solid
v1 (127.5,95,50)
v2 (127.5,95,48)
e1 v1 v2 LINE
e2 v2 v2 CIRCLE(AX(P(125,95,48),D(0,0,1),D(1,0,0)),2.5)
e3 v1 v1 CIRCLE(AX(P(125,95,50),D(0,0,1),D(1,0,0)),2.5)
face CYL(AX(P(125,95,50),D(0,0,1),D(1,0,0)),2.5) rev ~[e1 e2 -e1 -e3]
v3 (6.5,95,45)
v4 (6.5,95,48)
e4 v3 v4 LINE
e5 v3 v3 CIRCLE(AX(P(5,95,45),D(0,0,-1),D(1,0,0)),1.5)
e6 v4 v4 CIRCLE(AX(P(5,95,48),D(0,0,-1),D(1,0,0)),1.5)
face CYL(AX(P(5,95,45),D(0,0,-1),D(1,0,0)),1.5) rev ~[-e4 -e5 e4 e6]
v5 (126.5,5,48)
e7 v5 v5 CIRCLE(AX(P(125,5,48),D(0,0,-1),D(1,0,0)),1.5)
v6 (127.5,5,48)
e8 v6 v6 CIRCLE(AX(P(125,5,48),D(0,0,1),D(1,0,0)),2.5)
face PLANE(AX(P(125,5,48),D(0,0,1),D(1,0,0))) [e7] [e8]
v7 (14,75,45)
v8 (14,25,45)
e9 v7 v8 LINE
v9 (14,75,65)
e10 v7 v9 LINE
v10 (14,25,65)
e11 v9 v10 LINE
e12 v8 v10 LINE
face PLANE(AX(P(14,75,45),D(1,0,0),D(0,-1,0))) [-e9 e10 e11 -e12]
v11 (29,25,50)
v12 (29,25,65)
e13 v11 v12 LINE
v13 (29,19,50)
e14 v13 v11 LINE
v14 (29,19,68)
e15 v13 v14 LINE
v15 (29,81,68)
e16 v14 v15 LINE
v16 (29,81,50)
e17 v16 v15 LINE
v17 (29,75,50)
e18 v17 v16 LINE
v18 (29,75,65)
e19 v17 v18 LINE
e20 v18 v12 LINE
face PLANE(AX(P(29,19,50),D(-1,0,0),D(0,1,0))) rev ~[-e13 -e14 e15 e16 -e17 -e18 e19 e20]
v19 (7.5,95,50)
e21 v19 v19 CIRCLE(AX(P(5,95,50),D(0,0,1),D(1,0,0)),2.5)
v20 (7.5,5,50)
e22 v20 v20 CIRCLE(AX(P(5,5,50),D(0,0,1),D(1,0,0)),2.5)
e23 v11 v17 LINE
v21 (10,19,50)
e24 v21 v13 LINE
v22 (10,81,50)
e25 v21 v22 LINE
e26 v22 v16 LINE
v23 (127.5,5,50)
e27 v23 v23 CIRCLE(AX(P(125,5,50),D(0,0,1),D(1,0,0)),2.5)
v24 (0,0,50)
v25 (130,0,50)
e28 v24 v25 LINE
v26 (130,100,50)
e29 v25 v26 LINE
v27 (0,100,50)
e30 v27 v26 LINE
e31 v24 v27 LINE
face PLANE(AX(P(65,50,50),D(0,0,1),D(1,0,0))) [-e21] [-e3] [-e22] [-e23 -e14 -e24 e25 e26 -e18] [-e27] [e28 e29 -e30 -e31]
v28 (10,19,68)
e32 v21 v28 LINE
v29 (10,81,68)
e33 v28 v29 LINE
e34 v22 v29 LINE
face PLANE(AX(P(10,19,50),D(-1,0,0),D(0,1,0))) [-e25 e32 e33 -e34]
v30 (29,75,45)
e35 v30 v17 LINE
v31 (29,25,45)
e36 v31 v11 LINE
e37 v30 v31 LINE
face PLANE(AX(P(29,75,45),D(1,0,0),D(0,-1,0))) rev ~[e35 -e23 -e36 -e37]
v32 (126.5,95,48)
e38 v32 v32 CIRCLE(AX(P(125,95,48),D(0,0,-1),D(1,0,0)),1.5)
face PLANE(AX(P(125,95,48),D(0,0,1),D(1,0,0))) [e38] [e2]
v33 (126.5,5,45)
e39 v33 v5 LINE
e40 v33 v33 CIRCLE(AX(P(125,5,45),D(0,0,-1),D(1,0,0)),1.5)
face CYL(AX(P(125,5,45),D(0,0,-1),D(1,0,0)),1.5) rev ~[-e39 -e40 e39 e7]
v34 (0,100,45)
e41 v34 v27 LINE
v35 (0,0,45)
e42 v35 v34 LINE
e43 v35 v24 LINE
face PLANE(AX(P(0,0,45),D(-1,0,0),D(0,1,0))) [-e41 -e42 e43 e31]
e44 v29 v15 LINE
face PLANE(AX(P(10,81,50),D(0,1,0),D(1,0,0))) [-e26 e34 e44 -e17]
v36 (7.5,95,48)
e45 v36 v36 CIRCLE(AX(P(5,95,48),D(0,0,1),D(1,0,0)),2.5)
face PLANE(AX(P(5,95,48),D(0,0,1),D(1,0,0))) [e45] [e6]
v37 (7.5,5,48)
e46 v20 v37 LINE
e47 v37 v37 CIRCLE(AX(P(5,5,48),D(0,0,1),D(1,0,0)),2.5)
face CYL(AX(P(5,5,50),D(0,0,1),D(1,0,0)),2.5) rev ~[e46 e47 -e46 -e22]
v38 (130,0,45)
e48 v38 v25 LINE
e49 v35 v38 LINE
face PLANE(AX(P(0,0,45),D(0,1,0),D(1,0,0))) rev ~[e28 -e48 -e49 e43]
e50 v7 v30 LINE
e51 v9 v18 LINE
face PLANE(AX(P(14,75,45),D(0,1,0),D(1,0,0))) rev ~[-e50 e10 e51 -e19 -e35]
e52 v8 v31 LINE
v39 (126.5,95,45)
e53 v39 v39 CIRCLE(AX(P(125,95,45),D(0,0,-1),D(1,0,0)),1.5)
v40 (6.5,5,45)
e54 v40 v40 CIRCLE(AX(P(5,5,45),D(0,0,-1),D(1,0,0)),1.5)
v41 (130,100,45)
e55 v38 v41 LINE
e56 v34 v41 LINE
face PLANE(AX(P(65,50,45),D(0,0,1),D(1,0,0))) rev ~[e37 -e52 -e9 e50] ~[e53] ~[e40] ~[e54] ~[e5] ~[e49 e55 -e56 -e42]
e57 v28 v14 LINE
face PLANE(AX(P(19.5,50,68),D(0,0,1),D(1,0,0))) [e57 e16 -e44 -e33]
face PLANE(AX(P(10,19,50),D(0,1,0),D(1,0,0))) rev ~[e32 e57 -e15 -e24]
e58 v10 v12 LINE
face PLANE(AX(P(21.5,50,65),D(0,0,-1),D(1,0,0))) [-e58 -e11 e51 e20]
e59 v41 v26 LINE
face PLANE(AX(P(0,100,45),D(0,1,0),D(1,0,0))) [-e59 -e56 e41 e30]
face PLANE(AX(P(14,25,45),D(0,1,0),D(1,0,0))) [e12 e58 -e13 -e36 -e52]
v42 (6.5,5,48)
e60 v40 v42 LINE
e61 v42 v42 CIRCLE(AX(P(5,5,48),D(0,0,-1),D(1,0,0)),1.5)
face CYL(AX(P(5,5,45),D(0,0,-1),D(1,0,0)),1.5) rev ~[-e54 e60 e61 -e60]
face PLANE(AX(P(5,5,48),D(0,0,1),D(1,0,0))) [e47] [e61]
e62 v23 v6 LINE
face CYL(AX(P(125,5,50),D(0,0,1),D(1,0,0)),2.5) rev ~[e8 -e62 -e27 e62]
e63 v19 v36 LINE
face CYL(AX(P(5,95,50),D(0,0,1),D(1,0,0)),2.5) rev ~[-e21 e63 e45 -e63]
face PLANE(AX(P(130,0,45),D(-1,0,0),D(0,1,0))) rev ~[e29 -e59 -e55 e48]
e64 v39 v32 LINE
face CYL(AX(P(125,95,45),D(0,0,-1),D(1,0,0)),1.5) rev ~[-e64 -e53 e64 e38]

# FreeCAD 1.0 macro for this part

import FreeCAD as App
import Part
import Sketcher


def add_polygon(sketch, points):
    """Adds a closed chain of lines whose ends are joined by coincident constraints."""
    first, n = sketch.GeometryCount, len(points)
    for a, b in zip(points, points[1:] + points[:1]):
        sketch.addGeometry(Part.LineSegment(App.Vector(*a, 0), App.Vector(*b, 0)), False)
    for i in range(n):
        sketch.addConstraint(Sketcher.Constraint("Coincident", first + i, 2, first + (i + 1) % n, 1))

doc = App.newDocument("Part")
body = doc.addObject("PartDesign::Body", "Body")

# Sketch on XY plane
sketch1 = body.newObject("Sketcher::SketchObject", "Sketch")
sketch1.AttachmentSupport = (doc.getObject("XY_Plane"), [""])
sketch1.MapMode = "FlatFace"
add_polygon(sketch1, [(0, 100), (0, 0), (130, 0), (130, 100)])  # lines 0-3
sketch1.addConstraint([
    Sketcher.Constraint("Vertical", 0),
    Sketcher.Constraint("Horizontal", 1),
    Sketcher.Constraint("Vertical", 2),
    Sketcher.Constraint("Horizontal", 3),
    Sketcher.Constraint("Coincident", 0, 2, -1, 1),
    Sketcher.Constraint("DistanceX", 1, 1, 1, 2, 130.0),
    Sketcher.Constraint("DistanceY", 0, 2, 0, 1, 100.0),
])
pad1 = body.newObject("PartDesign::Pad", "Pad")
pad1.Profile = sketch1
pad1.Length = 5

# Sketch on XY plane
sketch2 = body.newObject("Sketcher::SketchObject", "Sketch001")
sketch2.AttachmentSupport = (doc.getObject("XY_Plane"), [""])
sketch2.MapMode = "FlatFace"
sketch2.AttachmentOffset = App.Placement(App.Vector(0, 0, 5), App.Rotation())
add_polygon(sketch2, [(10, 81), (10, 19), (29, 19), (29, 81)])  # lines 0-3
sketch2.addConstraint([
    Sketcher.Constraint("Vertical", 0),
    Sketcher.Constraint("Horizontal", 1),
    Sketcher.Constraint("Vertical", 2),
    Sketcher.Constraint("Horizontal", 3),
    Sketcher.Constraint("DistanceX", 1, 1, 1, 2, 19.0),
    Sketcher.Constraint("DistanceY", 0, 2, 0, 1, 62.0),
    Sketcher.Constraint("DistanceX", -1, 1, 0, 2, 10.0),
    Sketcher.Constraint("DistanceY", -1, 1, 0, 2, 19.0),
])
pad2 = body.newObject("PartDesign::Pad", "Pad001")
pad2.Profile = sketch2
pad2.Length = 18

# Sketch on XY plane
sketch3 = body.newObject("Sketcher::SketchObject", "Sketch002")
sketch3.AttachmentSupport = (doc.getObject("XY_Plane"), [""])
sketch3.MapMode = "FlatFace"
add_polygon(sketch3, [(14, 25), (14, 75), (29, 75), (29, 25)])  # lines 0-3
sketch3.addConstraint([
    Sketcher.Constraint("Vertical", 0),
    Sketcher.Constraint("Horizontal", 1),
    Sketcher.Constraint("Vertical", 2),
    Sketcher.Constraint("Horizontal", 3),
    Sketcher.Constraint("DistanceX", 1, 1, 1, 2, 15.0),
    Sketcher.Constraint("DistanceY", 0, 1, 0, 2, 50.0),
    Sketcher.Constraint("DistanceX", -1, 1, 0, 2, 14.0),
    Sketcher.Constraint("DistanceY", -1, 1, 0, 2, 75.0),
])
pocket1 = body.newObject("PartDesign::Pocket", "Pocket")
pocket1.Profile = sketch3
pocket1.Length = 20
pocket1.Reversed = True

# Sketch on XY plane
sketch4 = body.newObject("Sketcher::SketchObject", "Sketch003")
sketch4.AttachmentSupport = (doc.getObject("XY_Plane"), [""])
sketch4.MapMode = "FlatFace"
sketch4.addGeometry([
    Part.Circle(App.Vector(5, 5, 0), App.Vector(0, 0, 1), 1.5),
    Part.Circle(App.Vector(125, 5, 0), App.Vector(0, 0, 1), 1.5),
    Part.Circle(App.Vector(5, 95, 0), App.Vector(0, 0, 1), 1.5),
    Part.Circle(App.Vector(125, 95, 0), App.Vector(0, 0, 1), 1.5),
], False)
sketch4.addConstraint([
    Sketcher.Constraint("Equal", 0, 1),
    Sketcher.Constraint("Equal", 1, 2),
    Sketcher.Constraint("Equal", 2, 3),
    Sketcher.Constraint("Horizontal", 0, 3, 1, 3),
    Sketcher.Constraint("Horizontal", 2, 3, 3, 3),
    Sketcher.Constraint("Vertical", 0, 3, 2, 3),
    Sketcher.Constraint("Vertical", 1, 3, 3, 3),
    Sketcher.Constraint("Diameter", 0, 3.0),
    Sketcher.Constraint("DistanceX", -1, 1, 0, 3, 5.0),
    Sketcher.Constraint("DistanceY", -1, 1, 0, 3, 5.0),
    Sketcher.Constraint("DistanceX", -1, 1, 1, 3, 125.0),
    Sketcher.Constraint("DistanceY", -1, 1, 2, 3, 95.0),
])
pocket2 = body.newObject("PartDesign::Pocket", "Pocket001")
pocket2.Profile = sketch4
pocket2.Length = 5
pocket2.Reversed = True

# Sketch on XY plane
sketch5 = body.newObject("Sketcher::SketchObject", "Sketch004")
sketch5.AttachmentSupport = (doc.getObject("XY_Plane"), [""])
sketch5.MapMode = "FlatFace"
sketch5.AttachmentOffset = App.Placement(App.Vector(0, 0, 5), App.Rotation())
sketch5.addGeometry([
    Part.Circle(App.Vector(5, 95, 0), App.Vector(0, 0, 1), 2.5),
    Part.Circle(App.Vector(5, 5, 0), App.Vector(0, 0, 1), 2.5),
    Part.Circle(App.Vector(125, 5, 0), App.Vector(0, 0, 1), 2.5),
    Part.Circle(App.Vector(125, 95, 0), App.Vector(0, 0, 1), 2.5),
], False)
sketch5.addConstraint([
    Sketcher.Constraint("Equal", 0, 1),
    Sketcher.Constraint("Equal", 1, 2),
    Sketcher.Constraint("Equal", 2, 3),
    Sketcher.Constraint("Horizontal", 1, 3, 2, 3),
    Sketcher.Constraint("Horizontal", 0, 3, 3, 3),
    Sketcher.Constraint("Vertical", 0, 3, 1, 3),
    Sketcher.Constraint("Vertical", 2, 3, 3, 3),
    Sketcher.Constraint("Diameter", 0, 5.0),
    Sketcher.Constraint("DistanceX", -1, 1, 0, 3, 5.0),
    Sketcher.Constraint("DistanceY", -1, 1, 0, 3, 95.0),
    Sketcher.Constraint("DistanceY", -1, 1, 1, 3, 5.0),
    Sketcher.Constraint("DistanceX", -1, 1, 2, 3, 125.0),
])
pocket3 = body.newObject("PartDesign::Pocket", "Pocket002")
pocket3.Profile = sketch5
pocket3.Length = 2
body2 = doc.addObject("PartDesign::Body", "Body001")
doc.recompute()

body.Placement = App.Placement(App.Vector(0, 0, 45), App.Rotation(App.Vector(0, 0, 1), 0))
boolean = body2.newObject("PartDesign::Boolean", "Boolean")
boolean.Type = "Fuse"
boolean.addObjects([body])

doc.recompute()
